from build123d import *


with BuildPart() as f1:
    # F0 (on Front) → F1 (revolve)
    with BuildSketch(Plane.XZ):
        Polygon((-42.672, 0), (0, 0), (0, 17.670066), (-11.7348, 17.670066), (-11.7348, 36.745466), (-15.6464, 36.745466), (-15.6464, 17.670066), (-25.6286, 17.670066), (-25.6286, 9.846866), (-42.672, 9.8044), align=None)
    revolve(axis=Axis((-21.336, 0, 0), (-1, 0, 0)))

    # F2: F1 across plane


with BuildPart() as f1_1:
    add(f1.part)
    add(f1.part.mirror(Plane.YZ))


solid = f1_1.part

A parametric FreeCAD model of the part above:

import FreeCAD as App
import Part
import Sketcher

V = App.Vector
Q = App.Units.Quantity


def add_polygon(sketch, points):
    """Adds a closed chain of lines whose ends are joined by coincident constraints."""
    first, n = sketch.GeometryCount, len(points)
    for a, b in zip(points, points[1:] + points[:1]):
        sketch.addGeometry(Part.LineSegment(App.Vector(*a, 0), App.Vector(*b, 0)), False)
    for i in range(n):
        sketch.addConstraint(Sketcher.Constraint("Coincident", first + i, 2, first + (i + 1) % n, 1))

doc = App.newDocument("Part")
body = doc.addObject("PartDesign::Body", "Body")

sketch1 = body.newObject("Sketcher::SketchObject", "Sketch")
sketch1.AttachmentSupport = (doc.getObject("XZ_Plane"), [""])
sketch1.MapMode = "FlatFace"
add_polygon(sketch1, [(-42.7, 0), (0, 0), (0, 17.7), (-11.7, 17.7), (-11.7, 36.7), (-15.6, 36.7), (-15.6, 17.7), (-25.6, 17.7), (-25.6, 9.8), (-42.7, 9.8)])
sketch1.addConstraint([
    Sketcher.Constraint("Horizontal", 0),
    Sketcher.Constraint("Vertical", 1),
    Sketcher.Constraint("Horizontal", 2),
    Sketcher.Constraint("Vertical", 3),
    Sketcher.Constraint("Horizontal", 4),
    Sketcher.Constraint("Vertical", 5),
    Sketcher.Constraint("Horizontal", 6),
    Sketcher.Constraint("Vertical", 7),
    Sketcher.Constraint("Vertical", 9),
    Sketcher.Constraint("Coincident", 0, 2, -1, 1),
    Sketcher.Constraint("Horizontal", 2, 2, 5, 2),
    Sketcher.Constraint("DistanceX", 0, 1, 0, 2, Q("1.68 in")),
    Sketcher.Constraint("DistanceX", 2, 2, 2, 1, Q("0.462 in")),
    Sketcher.Constraint("DistanceX", 4, 2, 4, 1, Q("0.154 in")),
    Sketcher.Constraint("DistanceX", 6, 2, 6, 1, Q("0.393 in")),
    Sketcher.Constraint("DistanceY", 3, 1, 3, 2, Q("0.751 in")),
    Sketcher.Constraint("DistanceY", 7, 2, 7, 1, Q("0.308 in")),
    Sketcher.Constraint("DistanceY", 9, 2, 9, 1, Q("0.386 in")),
    Sketcher.Constraint("DistanceY", 1, 1, 1, 2, 17.670066),
])
revolution = body.newObject("PartDesign::Revolution", "Revolution")
revolution.Profile = sketch1
revolution.ReferenceAxis = (sketch1, ["H_Axis"])
revolution.Angle = 360
body2 = doc.addObject("PartDesign::Body", "Body001")
doc.recompute()

body2.BaseFeature = body
doc.recompute()

mirroring = doc.addObject("Part::Mirroring", "Mirroring")
mirroring.Source = body
mirroring.Base = V(0, 0, 0)
mirroring.Normal = V(1, 0, 0)
body3 = doc.addObject("PartDesign::Body", "Body002")
body3.BaseFeature = mirroring
boolean = body2.newObject("PartDesign::Boolean", "Boolean")
boolean.Type = "Fuse"
boolean.addObjects([body3])
doc.recompute()
mirroring.Visibility = False

doc.recompute()
